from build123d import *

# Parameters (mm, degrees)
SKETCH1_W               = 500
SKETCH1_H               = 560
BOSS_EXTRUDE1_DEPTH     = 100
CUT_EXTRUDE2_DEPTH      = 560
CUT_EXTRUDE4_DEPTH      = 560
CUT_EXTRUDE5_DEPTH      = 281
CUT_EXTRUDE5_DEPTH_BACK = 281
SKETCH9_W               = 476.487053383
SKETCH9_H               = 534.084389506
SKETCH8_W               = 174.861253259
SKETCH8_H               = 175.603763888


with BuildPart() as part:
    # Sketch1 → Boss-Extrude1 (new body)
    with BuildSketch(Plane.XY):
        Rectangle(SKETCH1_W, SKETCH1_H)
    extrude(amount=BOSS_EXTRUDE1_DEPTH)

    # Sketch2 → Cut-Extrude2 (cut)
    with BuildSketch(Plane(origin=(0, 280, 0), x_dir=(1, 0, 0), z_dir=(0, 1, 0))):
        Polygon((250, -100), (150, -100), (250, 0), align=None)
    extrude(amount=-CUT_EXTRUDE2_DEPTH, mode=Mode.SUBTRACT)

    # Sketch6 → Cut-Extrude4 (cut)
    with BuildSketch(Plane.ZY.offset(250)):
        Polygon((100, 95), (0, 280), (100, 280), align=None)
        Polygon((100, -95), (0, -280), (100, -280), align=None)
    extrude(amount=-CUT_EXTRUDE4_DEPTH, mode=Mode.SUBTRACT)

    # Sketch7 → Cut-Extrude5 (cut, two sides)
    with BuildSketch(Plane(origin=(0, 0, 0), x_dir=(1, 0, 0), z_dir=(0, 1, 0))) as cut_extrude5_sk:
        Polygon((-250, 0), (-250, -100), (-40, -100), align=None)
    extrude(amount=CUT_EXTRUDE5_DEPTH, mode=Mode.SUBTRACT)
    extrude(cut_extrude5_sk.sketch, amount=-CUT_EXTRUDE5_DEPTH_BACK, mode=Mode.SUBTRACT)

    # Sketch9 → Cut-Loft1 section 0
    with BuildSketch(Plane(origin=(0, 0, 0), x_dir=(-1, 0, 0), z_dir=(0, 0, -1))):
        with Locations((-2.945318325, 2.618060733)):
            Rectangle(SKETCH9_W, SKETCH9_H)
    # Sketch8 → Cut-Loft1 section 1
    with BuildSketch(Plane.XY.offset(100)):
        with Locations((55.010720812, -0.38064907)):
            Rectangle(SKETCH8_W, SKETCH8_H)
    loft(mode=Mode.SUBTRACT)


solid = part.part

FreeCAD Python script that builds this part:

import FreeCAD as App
import Part
import Sketcher
from FreeCAD import Vector

doc = App.newDocument("Part")
params = doc.addObject("Spreadsheet::Sheet", "Params")
for row, (alias, value) in enumerate([
    ("sketch1_width", "500 mm"),
    ("sketch1_height", "560 mm"),
    ("pad1_length", "100 mm"),
    ("sketch2_width", "100 mm"),
    ("pocket1_length", "560 mm"),
    ("sketch3_width", "185 mm"),
    ("sketch3_height", "100 mm"),
    ("pocket2_length", "560 mm"),
    ("sketch4_width", "210 mm"),
    ("sketch4_height", "100 mm"),
], start=1):
    params.set(f"A{row}", alias)
    params.set(f"B{row}", "=" + value)
    params.setAlias(f"B{row}", alias)

body = doc.addObject("PartDesign::Body", "Body")

# Sketch on XY plane
sketch1 = body.newObject("Sketcher::SketchObject", "Sketch")
sketch1.AttachmentSupport = (doc.getObject("XY_Plane"), [""])
sketch1.MapMode = "FlatFace"
sketch1.addGeometry([
    Part.LineSegment(Vector(-250, 280, 0), Vector(-250, -280, 0)),
    Part.LineSegment(Vector(-250, -280, 0), Vector(250, -280, 0)),
    Part.LineSegment(Vector(250, -280, 0), Vector(250, 280, 0)),
    Part.LineSegment(Vector(250, 280, 0), Vector(-250, 280, 0)),
], False)
sketch1.addConstraint([
    Sketcher.Constraint("Coincident", 0, 2, 1, 1),
    Sketcher.Constraint("Coincident", 1, 2, 2, 1),
    Sketcher.Constraint("Coincident", 2, 2, 3, 1),
    Sketcher.Constraint("Coincident", 3, 2, 0, 1),
    Sketcher.Constraint("Vertical", 0),
    Sketcher.Constraint("Horizontal", 1),
    Sketcher.Constraint("Vertical", 2),
    Sketcher.Constraint("Horizontal", 3),
    Sketcher.Constraint("Symmetric", 0, 2, 2, 2, -1, 1),
    Sketcher.Constraint("DistanceX", 1, 1, 1, 2, 500.0),
    Sketcher.Constraint("DistanceY", 0, 2, 0, 1, 560.0),
])
sketch1.setExpression("Constraints[9]", "Params.sketch1_width")
sketch1.setExpression("Constraints[10]", "Params.sketch1_height")
pad1 = body.newObject("PartDesign::Pad", "Pad")
pad1.Profile = sketch1
pad1.setExpression("Length", "Params.pad1_length")

# Sketch on XZ plane
sketch2 = body.newObject("Sketcher::SketchObject", "Sketch001")
sketch2.AttachmentSupport = (doc.getObject("XZ_Plane"), [""])
sketch2.MapMode = "FlatFace"
sketch2.AttachmentOffset = App.Placement(Vector(0, 0, -280), App.Rotation())
sketch2.addGeometry([
    Part.LineSegment(Vector(150, 100, 0), Vector(250, 100, 0)),
    Part.LineSegment(Vector(250, 100, 0), Vector(250, 0, 0)),
    Part.LineSegment(Vector(250, 0, 0), Vector(150, 100, 0)),
], False)
sketch2.addConstraint([
    Sketcher.Constraint("Coincident", 0, 2, 1, 1),
    Sketcher.Constraint("Coincident", 1, 2, 2, 1),
    Sketcher.Constraint("Coincident", 2, 2, 0, 1),
    Sketcher.Constraint("Horizontal", 0),
    Sketcher.Constraint("Vertical", 1),
    Sketcher.Constraint("PointOnObject", 1, 2, -1),
    Sketcher.Constraint("Equal", 0, 1),
    Sketcher.Constraint("DistanceX", 0, 1, 0, 2, 100.0),
    Sketcher.Constraint("DistanceX", -1, 1, 0, 2, 250.0),
])
sketch2.setExpression("Constraints[7]", "Params.sketch2_width")
pocket1 = body.newObject("PartDesign::Pocket", "Pocket")
pocket1.Profile = sketch2
pocket1.setExpression("Length", "Params.pocket1_length")
pocket1.Reversed = True

# Sketch on YZ plane
sketch3 = body.newObject("Sketcher::SketchObject", "Sketch002")
sketch3.AttachmentSupport = (doc.getObject("YZ_Plane"), [""])
sketch3.MapMode = "FlatFace"
sketch3.AttachmentOffset = App.Placement(Vector(0, 0, -250), App.Rotation())
sketch3.addGeometry([
    Part.LineSegment(Vector(280, 0, 0), Vector(95, 100, 0)),  # 0
    Part.LineSegment(Vector(95, 100, 0), Vector(280, 100, 0)),  # 1
    Part.LineSegment(Vector(280, 100, 0), Vector(280, 0, 0)),  # 2
    Part.LineSegment(Vector(-95, 100, 0), Vector(-280, 0, 0)),  # 3
    Part.LineSegment(Vector(-280, 0, 0), Vector(-280, 100, 0)),  # 4
    Part.LineSegment(Vector(-280, 100, 0), Vector(-95, 100, 0)),  # 5
], False)
sketch3.addConstraint([
    Sketcher.Constraint("Coincident", 0, 2, 1, 1),
    Sketcher.Constraint("Coincident", 1, 2, 2, 1),
    Sketcher.Constraint("Coincident", 2, 2, 0, 1),
    Sketcher.Constraint("Coincident", 3, 2, 4, 1),
    Sketcher.Constraint("Coincident", 4, 2, 5, 1),
    Sketcher.Constraint("Coincident", 5, 2, 3, 1),
    Sketcher.Constraint("Horizontal", 1),
    Sketcher.Constraint("Vertical", 2),
    Sketcher.Constraint("Vertical", 4),
    Sketcher.Constraint("Horizontal", 5),
    Sketcher.Constraint("Symmetric", 2, 2, 3, 2, -1, 1),
    Sketcher.Constraint("Symmetric", 0, 2, 5, 2, -2),
    Sketcher.Constraint("PointOnObject", 2, 2, -1),
    Sketcher.Constraint("DistanceX", 1, 1, 1, 2, 185.0),
    Sketcher.Constraint("DistanceY", 2, 2, 2, 1, 100.0),
    Sketcher.Constraint("DistanceX", -1, 1, 0, 2, 95.0),
])
sketch3.setExpression("Constraints[13]", "Params.sketch3_width")
sketch3.setExpression("Constraints[14]", "Params.sketch3_height")
pocket2 = body.newObject("PartDesign::Pocket", "Pocket001")
pocket2.Profile = sketch3
pocket2.setExpression("Length", "Params.pocket2_length")
pocket2.Reversed = True

# Sketch on XZ plane
sketch4 = body.newObject("Sketcher::SketchObject", "Sketch003")
sketch4.AttachmentSupport = (doc.getObject("XZ_Plane"), [""])
sketch4.MapMode = "FlatFace"
sketch4.addGeometry([
    Part.LineSegment(Vector(-250, 0, 0), Vector(-250, 100, 0)),
    Part.LineSegment(Vector(-250, 100, 0), Vector(-40, 100, 0)),
    Part.LineSegment(Vector(-40, 100, 0), Vector(-250, 0, 0)),
], False)
sketch4.addConstraint([
    Sketcher.Constraint("Coincident", 0, 2, 1, 1),
    Sketcher.Constraint("Coincident", 1, 2, 2, 1),
    Sketcher.Constraint("Coincident", 2, 2, 0, 1),
    Sketcher.Constraint("Vertical", 0),
    Sketcher.Constraint("Horizontal", 1),
    Sketcher.Constraint("PointOnObject", 2, 2, -1),
    Sketcher.Constraint("DistanceX", 1, 1, 1, 2, 210.0),
    Sketcher.Constraint("DistanceY", 0, 1, 0, 2, 100.0),
    Sketcher.Constraint("DistanceX", 0, 2, -1, 1, 250.0),
])
sketch4.setExpression("Constraints[6]", "Params.sketch4_width")
sketch4.setExpression("Constraints[7]", "Params.sketch4_height")
pocket3 = body.newObject("PartDesign::Pocket", "Pocket002")
pocket3.Profile = sketch4
pocket3.Type = "ThroughAll"
pocket3.Midplane = True

# Sketch on XY plane
sketch5 = body.newObject("Sketcher::SketchObject", "Sketch004")
sketch5.AttachmentSupport = (doc.getObject("XY_Plane"), [""])
sketch5.MapMode = "FlatFace"
sketch5.addGeometry([
    Part.LineSegment(Vector(241, 270, 0), Vector(241, -264, 0)),
    Part.LineSegment(Vector(241, -264, 0), Vector(-235, -264, 0)),
    Part.LineSegment(Vector(-235, -264, 0), Vector(-235, 270, 0)),
    Part.LineSegment(Vector(-235, 270, 0), Vector(241, 270, 0)),
], False)
sketch5.addConstraint([
    Sketcher.Constraint("Coincident", 0, 2, 1, 1),
    Sketcher.Constraint("Coincident", 1, 2, 2, 1),
    Sketcher.Constraint("Coincident", 2, 2, 3, 1),
    Sketcher.Constraint("Coincident", 3, 2, 0, 1),
    Sketcher.Constraint("Vertical", 0),
    Sketcher.Constraint("Horizontal", 1),
    Sketcher.Constraint("Vertical", 2),
    Sketcher.Constraint("Horizontal", 3),
    Sketcher.Constraint("DistanceY", 0, 2, 0, 1, 534.08439),
    Sketcher.Constraint("DistanceX", 1, 2, 1, 1, 476.487053),
    Sketcher.Constraint("DistanceX", 1, 2, -1, 1, 235.298208),
    Sketcher.Constraint("DistanceY", 0, 2, -1, 1, 264.424134),
])

# Sketch on XY plane
sketch6 = body.newObject("Sketcher::SketchObject", "Sketch005")
sketch6.AttachmentSupport = (doc.getObject("XY_Plane"), [""])
sketch6.MapMode = "FlatFace"
sketch6.AttachmentOffset = App.Placement(Vector(0, 0, 100), App.Rotation())
sketch6.addGeometry([
    Part.LineSegment(Vector(-32, 87, 0), Vector(-32, -88, 0)),
    Part.LineSegment(Vector(-32, -88, 0), Vector(142, -88, 0)),
    Part.LineSegment(Vector(142, -88, 0), Vector(142, 87, 0)),
    Part.LineSegment(Vector(142, 87, 0), Vector(-32, 87, 0)),
], False)
sketch6.addConstraint([
    Sketcher.Constraint("Coincident", 0, 2, 1, 1),
    Sketcher.Constraint("Coincident", 1, 2, 2, 1),
    Sketcher.Constraint("Coincident", 2, 2, 3, 1),
    Sketcher.Constraint("Coincident", 3, 2, 0, 1),
    Sketcher.Constraint("Vertical", 0),
    Sketcher.Constraint("Horizontal", 1),
    Sketcher.Constraint("Vertical", 2),
    Sketcher.Constraint("Horizontal", 3),
    Sketcher.Constraint("DistanceX", 1, 1, 1, 2, 174.861253),
    Sketcher.Constraint("DistanceY", 0, 2, 0, 1, 175.603764),
    Sketcher.Constraint("DistanceY", 0, 2, -1, 1, 88.182531),
    Sketcher.Constraint("DistanceX", 0, 2, -1, 1, 32.419906),
])

subtractiveloft = body.newObject("PartDesign::SubtractiveLoft", "SubtractiveLoft")
subtractiveloft.Profile = sketch5
subtractiveloft.Sections = [sketch6]

doc.recompute()
